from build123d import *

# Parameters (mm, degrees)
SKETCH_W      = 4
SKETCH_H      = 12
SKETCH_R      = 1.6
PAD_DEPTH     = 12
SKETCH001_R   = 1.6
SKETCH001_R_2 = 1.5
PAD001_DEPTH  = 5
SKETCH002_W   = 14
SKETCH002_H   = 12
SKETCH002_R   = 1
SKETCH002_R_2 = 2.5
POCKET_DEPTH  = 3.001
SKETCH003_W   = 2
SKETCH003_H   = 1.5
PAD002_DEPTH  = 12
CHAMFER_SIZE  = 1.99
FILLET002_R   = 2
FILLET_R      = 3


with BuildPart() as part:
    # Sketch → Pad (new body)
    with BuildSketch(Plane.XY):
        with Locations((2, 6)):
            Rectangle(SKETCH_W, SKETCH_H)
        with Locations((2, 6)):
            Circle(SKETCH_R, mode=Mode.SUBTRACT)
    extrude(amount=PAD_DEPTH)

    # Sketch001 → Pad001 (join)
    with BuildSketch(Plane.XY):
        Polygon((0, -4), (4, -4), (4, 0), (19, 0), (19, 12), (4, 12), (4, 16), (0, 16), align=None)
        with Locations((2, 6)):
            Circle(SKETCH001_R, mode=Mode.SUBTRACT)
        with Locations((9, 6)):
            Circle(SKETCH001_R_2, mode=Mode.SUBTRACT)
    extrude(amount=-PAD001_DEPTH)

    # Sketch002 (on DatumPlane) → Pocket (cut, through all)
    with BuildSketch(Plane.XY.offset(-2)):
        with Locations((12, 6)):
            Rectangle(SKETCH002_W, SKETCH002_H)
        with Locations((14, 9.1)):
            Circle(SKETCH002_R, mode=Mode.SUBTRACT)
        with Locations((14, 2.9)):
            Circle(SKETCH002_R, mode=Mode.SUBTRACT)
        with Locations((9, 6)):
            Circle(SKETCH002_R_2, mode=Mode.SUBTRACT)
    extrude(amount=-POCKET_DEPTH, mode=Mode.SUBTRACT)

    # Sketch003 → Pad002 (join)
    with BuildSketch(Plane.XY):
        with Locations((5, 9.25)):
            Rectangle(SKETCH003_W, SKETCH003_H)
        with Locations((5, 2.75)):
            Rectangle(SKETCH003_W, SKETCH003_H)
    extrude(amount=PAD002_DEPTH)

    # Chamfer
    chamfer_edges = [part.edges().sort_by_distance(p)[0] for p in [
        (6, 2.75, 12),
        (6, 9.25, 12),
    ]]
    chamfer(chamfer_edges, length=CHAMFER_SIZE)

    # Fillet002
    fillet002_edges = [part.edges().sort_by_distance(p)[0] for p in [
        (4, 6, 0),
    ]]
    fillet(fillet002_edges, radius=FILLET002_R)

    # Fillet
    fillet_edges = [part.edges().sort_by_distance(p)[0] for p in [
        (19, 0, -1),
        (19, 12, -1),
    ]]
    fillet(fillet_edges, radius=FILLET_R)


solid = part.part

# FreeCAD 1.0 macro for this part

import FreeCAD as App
import Part
import Sketcher
from FreeCAD import Vector


def edges_at(feature, points):
    """Names of the edges that pass closest to the given points."""
    edges = feature.Shape.Edges
    near = lambda p: min(range(len(edges)), key=lambda i: edges[i].distToShape(Part.Vertex(*p))[0])
    return sorted({f"Edge{near(p) + 1}" for p in points})

doc = App.newDocument("Part")
params = doc.addObject("Spreadsheet::Sheet", "Params")
for row, (alias, value) in enumerate([
    ("sketch1_diameter", "3.2 mm"),
    ("sketch1_width", "4 mm"),
    ("sketch1_height", "12 mm"),
    ("pad1_length", "12 mm"),
    ("sketch2_diameter", "3 mm"),
    ("sketch2_diameter2", "3.2 mm"),
    ("sketch2_width", "4 mm"),
    ("sketch2_width2", "15 mm"),
    ("sketch2_height", "12 mm"),
    ("pad2_length", "5 mm"),
    ("sketch3_diameter", "2 mm"),
    ("sketch3_diameter2", "5 mm"),
    ("sketch3_width", "14 mm"),
    ("sketch3_height", "12 mm"),
    ("sketch4_width", "2 mm"),
    ("sketch4_height", "1.5 mm"),
    ("pad3_length", "12 mm"),
    ("chamfer_size", "1.99 mm"),
    ("fillet_radius", "2 mm"),
    ("fillet2_radius", "3 mm"),
], start=1):
    params.set(f"A{row}", alias)
    params.set(f"B{row}", "=" + value)
    params.setAlias(f"B{row}", alias)

body = doc.addObject("PartDesign::Body", "Body")

# Sketch on XY plane
sketch1 = body.newObject("Sketcher::SketchObject", "Sketch")
sketch1.AttachmentSupport = (doc.getObject("XY_Plane"), [""])
sketch1.MapMode = "FlatFace"
sketch1.addGeometry([
    Part.LineSegment(Vector(0, 12, 0), Vector(0, 0, 0)),  # 0
    Part.LineSegment(Vector(0, 0, 0), Vector(4, 0, 0)),  # 1
    Part.LineSegment(Vector(4, 0, 0), Vector(4, 12, 0)),  # 2
    Part.LineSegment(Vector(4, 12, 0), Vector(0, 12, 0)),  # 3
    Part.Circle(Vector(2, 6, 0), Vector(0, 0, 1), 1.6),  # 4
], False)
sketch1.addConstraint([
    Sketcher.Constraint("Coincident", 0, 2, 1, 1),
    Sketcher.Constraint("Coincident", 1, 2, 2, 1),
    Sketcher.Constraint("Coincident", 2, 2, 3, 1),
    Sketcher.Constraint("Coincident", 3, 2, 0, 1),
    Sketcher.Constraint("Vertical", 0),
    Sketcher.Constraint("Horizontal", 1),
    Sketcher.Constraint("Vertical", 2),
    Sketcher.Constraint("Horizontal", 3),
    Sketcher.Constraint("Coincident", 0, 2, -1, 1),
    Sketcher.Constraint("Diameter", 4, 3.2),
    Sketcher.Constraint("DistanceX", 1, 1, 1, 2, 4.0),
    Sketcher.Constraint("DistanceY", 0, 2, 0, 1, 12.0),
    Sketcher.Constraint("DistanceX", -1, 1, 4, 3, 2.0),
    Sketcher.Constraint("DistanceY", -1, 1, 4, 3, 6.0),
])
sketch1.setExpression("Constraints[9]", "Params.sketch1_diameter")
sketch1.setExpression("Constraints[10]", "Params.sketch1_width")
sketch1.setExpression("Constraints[11]", "Params.sketch1_height")
pad1 = body.newObject("PartDesign::Pad", "Pad")
pad1.Profile = sketch1
pad1.setExpression("Length", "Params.pad1_length")

# Sketch on XY plane
sketch2 = body.newObject("Sketcher::SketchObject", "Sketch001")
sketch2.AttachmentSupport = (doc.getObject("XY_Plane"), [""])
sketch2.MapMode = "FlatFace"
sketch2.addGeometry([
    Part.LineSegment(Vector(0, -4, 0), Vector(4, -4, 0)),  # 0
    Part.LineSegment(Vector(4, -4, 0), Vector(4, 0, 0)),  # 1
    Part.LineSegment(Vector(4, 0, 0), Vector(19, 0, 0)),  # 2
    Part.LineSegment(Vector(19, 0, 0), Vector(19, 12, 0)),  # 3
    Part.LineSegment(Vector(19, 12, 0), Vector(4, 12, 0)),  # 4
    Part.LineSegment(Vector(4, 12, 0), Vector(4, 16, 0)),  # 5
    Part.LineSegment(Vector(4, 16, 0), Vector(0, 16, 0)),  # 6
    Part.LineSegment(Vector(0, 16, 0), Vector(0, -4, 0)),  # 7
    Part.Circle(Vector(2, 6, 0), Vector(0, 0, 1), 1.6),  # 8
    Part.Circle(Vector(9, 6, 0), Vector(0, 0, 1), 1.5),  # 9
], False)
sketch2.addConstraint([
    Sketcher.Constraint("Coincident", 0, 2, 1, 1),
    Sketcher.Constraint("Coincident", 1, 2, 2, 1),
    Sketcher.Constraint("Coincident", 2, 2, 3, 1),
    Sketcher.Constraint("Coincident", 3, 2, 4, 1),
    Sketcher.Constraint("Coincident", 4, 2, 5, 1),
    Sketcher.Constraint("Coincident", 5, 2, 6, 1),
    Sketcher.Constraint("Coincident", 6, 2, 7, 1),
    Sketcher.Constraint("Coincident", 7, 2, 0, 1),
    Sketcher.Constraint("Horizontal", 0),
    Sketcher.Constraint("Vertical", 1),
    Sketcher.Constraint("Horizontal", 2),
    Sketcher.Constraint("Vertical", 3),
    Sketcher.Constraint("Horizontal", 4),
    Sketcher.Constraint("Vertical", 5),
    Sketcher.Constraint("Horizontal", 6),
    Sketcher.Constraint("Vertical", 7),
    Sketcher.Constraint("PointOnObject", 1, 2, -1),
    Sketcher.Constraint("PointOnObject", 6, 2, -2),
    Sketcher.Constraint("Horizontal", 8, 3, 9, 3),
    Sketcher.Constraint("Vertical", 1, 2, 4, 2),
    Sketcher.Constraint("Equal", 6, 1),
    Sketcher.Constraint("Equal", 1, 5),
    Sketcher.Constraint("Diameter", 9, 3.0),
    Sketcher.Constraint("Diameter", 8, 3.2),
    Sketcher.Constraint("DistanceX", 0, 1, 0, 2, 4.0),
    Sketcher.Constraint("DistanceX", 2, 1, 2, 2, 15.0),
    Sketcher.Constraint("DistanceY", 3, 1, 3, 2, 12.0),
    Sketcher.Constraint("DistanceX", -1, 1, 8, 3, 2.0),
    Sketcher.Constraint("DistanceY", -1, 1, 8, 3, 6.0),
    Sketcher.Constraint("DistanceX", -1, 1, 9, 3, 9.0),
])
sketch2.setExpression("Constraints[22]", "Params.sketch2_diameter")
sketch2.setExpression("Constraints[23]", "Params.sketch2_diameter2")
sketch2.setExpression("Constraints[24]", "Params.sketch2_width")
sketch2.setExpression("Constraints[25]", "Params.sketch2_width2")
sketch2.setExpression("Constraints[26]", "Params.sketch2_height")
pad2 = body.newObject("PartDesign::Pad", "Pad001")
pad2.Profile = sketch2
pad2.setExpression("Length", "Params.pad2_length")
pad2.Reversed = True

# Sketch on XY plane
sketch3 = body.newObject("Sketcher::SketchObject", "Sketch002")
sketch3.AttachmentSupport = (doc.getObject("XY_Plane"), [""])
sketch3.MapMode = "FlatFace"
sketch3.AttachmentOffset = App.Placement(Vector(0, 0, -2), App.Rotation())
sketch3.addGeometry([
    Part.LineSegment(Vector(5, 12, 0), Vector(5, 0, 0)),  # 0
    Part.LineSegment(Vector(5, 0, 0), Vector(19, 0, 0)),  # 1
    Part.LineSegment(Vector(19, 0, 0), Vector(19, 12, 0)),  # 2
    Part.LineSegment(Vector(19, 12, 0), Vector(5, 12, 0)),  # 3
    Part.Circle(Vector(14, 2.9, 0), Vector(0, 0, 1), 1),  # 4
    Part.Circle(Vector(9, 6, 0), Vector(0, 0, 1), 2.5),  # 5
    Part.Circle(Vector(14, 9.1, 0), Vector(0, 0, 1), 1),  # 6
], False)
sketch3.addConstraint([
    Sketcher.Constraint("Coincident", 0, 2, 1, 1),
    Sketcher.Constraint("Coincident", 1, 2, 2, 1),
    Sketcher.Constraint("Coincident", 2, 2, 3, 1),
    Sketcher.Constraint("Coincident", 3, 2, 0, 1),
    Sketcher.Constraint("Vertical", 0),
    Sketcher.Constraint("Horizontal", 1),
    Sketcher.Constraint("Vertical", 2),
    Sketcher.Constraint("Horizontal", 3),
    Sketcher.Constraint("Equal", 4, 6),
    Sketcher.Constraint("PointOnObject", 0, 2, -1),
    Sketcher.Constraint("Vertical", 4, 3, 6, 3),
    Sketcher.Constraint("Diameter", 4, 2.0),
    Sketcher.Constraint("Diameter", 5, 5.0),
    Sketcher.Constraint("DistanceX", 1, 1, 1, 2, 14.0),
    Sketcher.Constraint("DistanceY", 0, 2, 0, 1, 12.0),
    Sketcher.Constraint("DistanceX", -1, 1, 4, 3, 14.0),
    Sketcher.Constraint("DistanceX", -1, 1, 5, 3, 9.0),
    Sketcher.Constraint("DistanceY", -1, 1, 5, 3, 6.0),
    Sketcher.Constraint("DistanceX", -1, 1, 0, 2, 5.0),
    Sketcher.Constraint("DistanceY", -1, 1, 4, 3, 2.9),
    Sketcher.Constraint("DistanceY", -1, 1, 6, 3, 9.1),
])
sketch3.setExpression("Constraints[11]", "Params.sketch3_diameter")
sketch3.setExpression("Constraints[12]", "Params.sketch3_diameter2")
sketch3.setExpression("Constraints[13]", "Params.sketch3_width")
sketch3.setExpression("Constraints[14]", "Params.sketch3_height")
pocket1 = body.newObject("PartDesign::Pocket", "Pocket")
pocket1.Profile = sketch3
pocket1.Type = "ThroughAll"

# Sketch on XY plane
sketch4 = body.newObject("Sketcher::SketchObject", "Sketch003")
sketch4.AttachmentSupport = (doc.getObject("XY_Plane"), [""])
sketch4.MapMode = "FlatFace"
sketch4.addGeometry([
    Part.LineSegment(Vector(4, 10, 0), Vector(4, 8.5, 0)),  # 0
    Part.LineSegment(Vector(4, 8.5, 0), Vector(6, 8.5, 0)),  # 1
    Part.LineSegment(Vector(6, 8.5, 0), Vector(6, 10, 0)),  # 2
    Part.LineSegment(Vector(6, 10, 0), Vector(4, 10, 0)),  # 3
    Part.LineSegment(Vector(4, 3.5, 0), Vector(4, 2, 0)),  # 4
    Part.LineSegment(Vector(4, 2, 0), Vector(6, 2, 0)),  # 5
    Part.LineSegment(Vector(6, 2, 0), Vector(6, 3.5, 0)),  # 6
    Part.LineSegment(Vector(6, 3.5, 0), Vector(4, 3.5, 0)),  # 7
], False)
sketch4.addConstraint([
    Sketcher.Constraint("Coincident", 0, 2, 1, 1),
    Sketcher.Constraint("Coincident", 1, 2, 2, 1),
    Sketcher.Constraint("Coincident", 2, 2, 3, 1),
    Sketcher.Constraint("Coincident", 3, 2, 0, 1),
    Sketcher.Constraint("Coincident", 4, 2, 5, 1),
    Sketcher.Constraint("Coincident", 5, 2, 6, 1),
    Sketcher.Constraint("Coincident", 6, 2, 7, 1),
    Sketcher.Constraint("Coincident", 7, 2, 4, 1),
    Sketcher.Constraint("Vertical", 0),
    Sketcher.Constraint("Horizontal", 1),
    Sketcher.Constraint("Vertical", 2),
    Sketcher.Constraint("Horizontal", 3),
    Sketcher.Constraint("Vertical", 4),
    Sketcher.Constraint("Horizontal", 5),
    Sketcher.Constraint("Vertical", 6),
    Sketcher.Constraint("Horizontal", 7),
    Sketcher.Constraint("Vertical", 3, 2, 4, 2),
    Sketcher.Constraint("Vertical", 2, 2, 5, 2),
    Sketcher.Constraint("Equal", 2, 4),
    Sketcher.Constraint("DistanceX", 1, 1, 1, 2, 2.0),
    Sketcher.Constraint("DistanceY", 0, 2, 0, 1, 1.5),
    Sketcher.Constraint("DistanceX", -1, 1, 0, 2, 4.0),
    Sketcher.Constraint("DistanceY", -1, 1, 2, 2, 10.0),
    Sketcher.Constraint("DistanceY", -1, 1, 4, 2, 2.0),
])
sketch4.setExpression("Constraints[19]", "Params.sketch4_width")
sketch4.setExpression("Constraints[20]", "Params.sketch4_height")
pad3 = body.newObject("PartDesign::Pad", "Pad002")
pad3.Profile = sketch4
pad3.setExpression("Length", "Params.pad3_length")
doc.recompute()

chamfer = body.newObject("PartDesign::Chamfer", "Chamfer")
chamfer.Base = (pad3, edges_at(pad3, [(6, 2.75, 12), (6, 9.25, 12)]))
chamfer.setExpression("Size", "Params.chamfer_size")
doc.recompute()

fillet = body.newObject("PartDesign::Fillet", "Fillet")
fillet.Base = (chamfer, edges_at(chamfer, [(4, 6, 0)]))
fillet.setExpression("Radius", "Params.fillet_radius")
doc.recompute()

fillet2 = body.newObject("PartDesign::Fillet", "Fillet001")
fillet2.Base = (fillet, edges_at(fillet, [(19, 0, -1), (19, 12, -1)]))
fillet2.setExpression("Radius", "Params.fillet2_radius")

doc.recompute()
